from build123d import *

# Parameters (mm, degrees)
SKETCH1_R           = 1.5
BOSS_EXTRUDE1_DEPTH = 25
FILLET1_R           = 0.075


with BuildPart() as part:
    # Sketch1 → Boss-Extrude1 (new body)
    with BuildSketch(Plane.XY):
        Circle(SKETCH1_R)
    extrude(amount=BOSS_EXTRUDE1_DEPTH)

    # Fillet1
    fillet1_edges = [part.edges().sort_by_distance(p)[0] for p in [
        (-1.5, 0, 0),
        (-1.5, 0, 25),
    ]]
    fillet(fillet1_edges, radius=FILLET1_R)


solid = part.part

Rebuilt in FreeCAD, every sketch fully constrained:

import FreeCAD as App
import Part
import Sketcher

V = App.Vector


def edges_at(feature, points):
    """Names of the edges that pass closest to the given points."""
    edges = feature.Shape.Edges
    near = lambda p: min(range(len(edges)), key=lambda i: edges[i].distToShape(Part.Vertex(*p))[0])
    return sorted({f"Edge{near(p) + 1}" for p in points})

doc = App.newDocument("Part")
body = doc.addObject("PartDesign::Body", "Body")

sketch1 = doc.addObject("Sketcher::SketchObject", "Sketch")
body.addObject(sketch1)
sketch1.AttachmentSupport = (doc.XY_Plane, [""])
sketch1.MapMode = "FlatFace"
sketch1.addGeometry(Part.Circle(V(0, 0, 0), V(0, 0, 1), 1.5), False)
sketch1.addConstraint([
    Sketcher.Constraint("Coincident", 0, 3, -1, 1),
    Sketcher.Constraint("Diameter", 0, 3.0),
])
pad1 = doc.addObject("PartDesign::Pad", "Pad")
body.addObject(pad1)
pad1.Profile = sketch1
pad1.Length = 25
doc.recompute()

fillet = doc.addObject("PartDesign::Fillet", "Fillet")
body.addObject(fillet)
fillet.Base = (pad1, edges_at(pad1, [(-1.5, 0, 0), (-1.5, 0, 25)]))
fillet.Radius = 0.075

doc.recompute()
